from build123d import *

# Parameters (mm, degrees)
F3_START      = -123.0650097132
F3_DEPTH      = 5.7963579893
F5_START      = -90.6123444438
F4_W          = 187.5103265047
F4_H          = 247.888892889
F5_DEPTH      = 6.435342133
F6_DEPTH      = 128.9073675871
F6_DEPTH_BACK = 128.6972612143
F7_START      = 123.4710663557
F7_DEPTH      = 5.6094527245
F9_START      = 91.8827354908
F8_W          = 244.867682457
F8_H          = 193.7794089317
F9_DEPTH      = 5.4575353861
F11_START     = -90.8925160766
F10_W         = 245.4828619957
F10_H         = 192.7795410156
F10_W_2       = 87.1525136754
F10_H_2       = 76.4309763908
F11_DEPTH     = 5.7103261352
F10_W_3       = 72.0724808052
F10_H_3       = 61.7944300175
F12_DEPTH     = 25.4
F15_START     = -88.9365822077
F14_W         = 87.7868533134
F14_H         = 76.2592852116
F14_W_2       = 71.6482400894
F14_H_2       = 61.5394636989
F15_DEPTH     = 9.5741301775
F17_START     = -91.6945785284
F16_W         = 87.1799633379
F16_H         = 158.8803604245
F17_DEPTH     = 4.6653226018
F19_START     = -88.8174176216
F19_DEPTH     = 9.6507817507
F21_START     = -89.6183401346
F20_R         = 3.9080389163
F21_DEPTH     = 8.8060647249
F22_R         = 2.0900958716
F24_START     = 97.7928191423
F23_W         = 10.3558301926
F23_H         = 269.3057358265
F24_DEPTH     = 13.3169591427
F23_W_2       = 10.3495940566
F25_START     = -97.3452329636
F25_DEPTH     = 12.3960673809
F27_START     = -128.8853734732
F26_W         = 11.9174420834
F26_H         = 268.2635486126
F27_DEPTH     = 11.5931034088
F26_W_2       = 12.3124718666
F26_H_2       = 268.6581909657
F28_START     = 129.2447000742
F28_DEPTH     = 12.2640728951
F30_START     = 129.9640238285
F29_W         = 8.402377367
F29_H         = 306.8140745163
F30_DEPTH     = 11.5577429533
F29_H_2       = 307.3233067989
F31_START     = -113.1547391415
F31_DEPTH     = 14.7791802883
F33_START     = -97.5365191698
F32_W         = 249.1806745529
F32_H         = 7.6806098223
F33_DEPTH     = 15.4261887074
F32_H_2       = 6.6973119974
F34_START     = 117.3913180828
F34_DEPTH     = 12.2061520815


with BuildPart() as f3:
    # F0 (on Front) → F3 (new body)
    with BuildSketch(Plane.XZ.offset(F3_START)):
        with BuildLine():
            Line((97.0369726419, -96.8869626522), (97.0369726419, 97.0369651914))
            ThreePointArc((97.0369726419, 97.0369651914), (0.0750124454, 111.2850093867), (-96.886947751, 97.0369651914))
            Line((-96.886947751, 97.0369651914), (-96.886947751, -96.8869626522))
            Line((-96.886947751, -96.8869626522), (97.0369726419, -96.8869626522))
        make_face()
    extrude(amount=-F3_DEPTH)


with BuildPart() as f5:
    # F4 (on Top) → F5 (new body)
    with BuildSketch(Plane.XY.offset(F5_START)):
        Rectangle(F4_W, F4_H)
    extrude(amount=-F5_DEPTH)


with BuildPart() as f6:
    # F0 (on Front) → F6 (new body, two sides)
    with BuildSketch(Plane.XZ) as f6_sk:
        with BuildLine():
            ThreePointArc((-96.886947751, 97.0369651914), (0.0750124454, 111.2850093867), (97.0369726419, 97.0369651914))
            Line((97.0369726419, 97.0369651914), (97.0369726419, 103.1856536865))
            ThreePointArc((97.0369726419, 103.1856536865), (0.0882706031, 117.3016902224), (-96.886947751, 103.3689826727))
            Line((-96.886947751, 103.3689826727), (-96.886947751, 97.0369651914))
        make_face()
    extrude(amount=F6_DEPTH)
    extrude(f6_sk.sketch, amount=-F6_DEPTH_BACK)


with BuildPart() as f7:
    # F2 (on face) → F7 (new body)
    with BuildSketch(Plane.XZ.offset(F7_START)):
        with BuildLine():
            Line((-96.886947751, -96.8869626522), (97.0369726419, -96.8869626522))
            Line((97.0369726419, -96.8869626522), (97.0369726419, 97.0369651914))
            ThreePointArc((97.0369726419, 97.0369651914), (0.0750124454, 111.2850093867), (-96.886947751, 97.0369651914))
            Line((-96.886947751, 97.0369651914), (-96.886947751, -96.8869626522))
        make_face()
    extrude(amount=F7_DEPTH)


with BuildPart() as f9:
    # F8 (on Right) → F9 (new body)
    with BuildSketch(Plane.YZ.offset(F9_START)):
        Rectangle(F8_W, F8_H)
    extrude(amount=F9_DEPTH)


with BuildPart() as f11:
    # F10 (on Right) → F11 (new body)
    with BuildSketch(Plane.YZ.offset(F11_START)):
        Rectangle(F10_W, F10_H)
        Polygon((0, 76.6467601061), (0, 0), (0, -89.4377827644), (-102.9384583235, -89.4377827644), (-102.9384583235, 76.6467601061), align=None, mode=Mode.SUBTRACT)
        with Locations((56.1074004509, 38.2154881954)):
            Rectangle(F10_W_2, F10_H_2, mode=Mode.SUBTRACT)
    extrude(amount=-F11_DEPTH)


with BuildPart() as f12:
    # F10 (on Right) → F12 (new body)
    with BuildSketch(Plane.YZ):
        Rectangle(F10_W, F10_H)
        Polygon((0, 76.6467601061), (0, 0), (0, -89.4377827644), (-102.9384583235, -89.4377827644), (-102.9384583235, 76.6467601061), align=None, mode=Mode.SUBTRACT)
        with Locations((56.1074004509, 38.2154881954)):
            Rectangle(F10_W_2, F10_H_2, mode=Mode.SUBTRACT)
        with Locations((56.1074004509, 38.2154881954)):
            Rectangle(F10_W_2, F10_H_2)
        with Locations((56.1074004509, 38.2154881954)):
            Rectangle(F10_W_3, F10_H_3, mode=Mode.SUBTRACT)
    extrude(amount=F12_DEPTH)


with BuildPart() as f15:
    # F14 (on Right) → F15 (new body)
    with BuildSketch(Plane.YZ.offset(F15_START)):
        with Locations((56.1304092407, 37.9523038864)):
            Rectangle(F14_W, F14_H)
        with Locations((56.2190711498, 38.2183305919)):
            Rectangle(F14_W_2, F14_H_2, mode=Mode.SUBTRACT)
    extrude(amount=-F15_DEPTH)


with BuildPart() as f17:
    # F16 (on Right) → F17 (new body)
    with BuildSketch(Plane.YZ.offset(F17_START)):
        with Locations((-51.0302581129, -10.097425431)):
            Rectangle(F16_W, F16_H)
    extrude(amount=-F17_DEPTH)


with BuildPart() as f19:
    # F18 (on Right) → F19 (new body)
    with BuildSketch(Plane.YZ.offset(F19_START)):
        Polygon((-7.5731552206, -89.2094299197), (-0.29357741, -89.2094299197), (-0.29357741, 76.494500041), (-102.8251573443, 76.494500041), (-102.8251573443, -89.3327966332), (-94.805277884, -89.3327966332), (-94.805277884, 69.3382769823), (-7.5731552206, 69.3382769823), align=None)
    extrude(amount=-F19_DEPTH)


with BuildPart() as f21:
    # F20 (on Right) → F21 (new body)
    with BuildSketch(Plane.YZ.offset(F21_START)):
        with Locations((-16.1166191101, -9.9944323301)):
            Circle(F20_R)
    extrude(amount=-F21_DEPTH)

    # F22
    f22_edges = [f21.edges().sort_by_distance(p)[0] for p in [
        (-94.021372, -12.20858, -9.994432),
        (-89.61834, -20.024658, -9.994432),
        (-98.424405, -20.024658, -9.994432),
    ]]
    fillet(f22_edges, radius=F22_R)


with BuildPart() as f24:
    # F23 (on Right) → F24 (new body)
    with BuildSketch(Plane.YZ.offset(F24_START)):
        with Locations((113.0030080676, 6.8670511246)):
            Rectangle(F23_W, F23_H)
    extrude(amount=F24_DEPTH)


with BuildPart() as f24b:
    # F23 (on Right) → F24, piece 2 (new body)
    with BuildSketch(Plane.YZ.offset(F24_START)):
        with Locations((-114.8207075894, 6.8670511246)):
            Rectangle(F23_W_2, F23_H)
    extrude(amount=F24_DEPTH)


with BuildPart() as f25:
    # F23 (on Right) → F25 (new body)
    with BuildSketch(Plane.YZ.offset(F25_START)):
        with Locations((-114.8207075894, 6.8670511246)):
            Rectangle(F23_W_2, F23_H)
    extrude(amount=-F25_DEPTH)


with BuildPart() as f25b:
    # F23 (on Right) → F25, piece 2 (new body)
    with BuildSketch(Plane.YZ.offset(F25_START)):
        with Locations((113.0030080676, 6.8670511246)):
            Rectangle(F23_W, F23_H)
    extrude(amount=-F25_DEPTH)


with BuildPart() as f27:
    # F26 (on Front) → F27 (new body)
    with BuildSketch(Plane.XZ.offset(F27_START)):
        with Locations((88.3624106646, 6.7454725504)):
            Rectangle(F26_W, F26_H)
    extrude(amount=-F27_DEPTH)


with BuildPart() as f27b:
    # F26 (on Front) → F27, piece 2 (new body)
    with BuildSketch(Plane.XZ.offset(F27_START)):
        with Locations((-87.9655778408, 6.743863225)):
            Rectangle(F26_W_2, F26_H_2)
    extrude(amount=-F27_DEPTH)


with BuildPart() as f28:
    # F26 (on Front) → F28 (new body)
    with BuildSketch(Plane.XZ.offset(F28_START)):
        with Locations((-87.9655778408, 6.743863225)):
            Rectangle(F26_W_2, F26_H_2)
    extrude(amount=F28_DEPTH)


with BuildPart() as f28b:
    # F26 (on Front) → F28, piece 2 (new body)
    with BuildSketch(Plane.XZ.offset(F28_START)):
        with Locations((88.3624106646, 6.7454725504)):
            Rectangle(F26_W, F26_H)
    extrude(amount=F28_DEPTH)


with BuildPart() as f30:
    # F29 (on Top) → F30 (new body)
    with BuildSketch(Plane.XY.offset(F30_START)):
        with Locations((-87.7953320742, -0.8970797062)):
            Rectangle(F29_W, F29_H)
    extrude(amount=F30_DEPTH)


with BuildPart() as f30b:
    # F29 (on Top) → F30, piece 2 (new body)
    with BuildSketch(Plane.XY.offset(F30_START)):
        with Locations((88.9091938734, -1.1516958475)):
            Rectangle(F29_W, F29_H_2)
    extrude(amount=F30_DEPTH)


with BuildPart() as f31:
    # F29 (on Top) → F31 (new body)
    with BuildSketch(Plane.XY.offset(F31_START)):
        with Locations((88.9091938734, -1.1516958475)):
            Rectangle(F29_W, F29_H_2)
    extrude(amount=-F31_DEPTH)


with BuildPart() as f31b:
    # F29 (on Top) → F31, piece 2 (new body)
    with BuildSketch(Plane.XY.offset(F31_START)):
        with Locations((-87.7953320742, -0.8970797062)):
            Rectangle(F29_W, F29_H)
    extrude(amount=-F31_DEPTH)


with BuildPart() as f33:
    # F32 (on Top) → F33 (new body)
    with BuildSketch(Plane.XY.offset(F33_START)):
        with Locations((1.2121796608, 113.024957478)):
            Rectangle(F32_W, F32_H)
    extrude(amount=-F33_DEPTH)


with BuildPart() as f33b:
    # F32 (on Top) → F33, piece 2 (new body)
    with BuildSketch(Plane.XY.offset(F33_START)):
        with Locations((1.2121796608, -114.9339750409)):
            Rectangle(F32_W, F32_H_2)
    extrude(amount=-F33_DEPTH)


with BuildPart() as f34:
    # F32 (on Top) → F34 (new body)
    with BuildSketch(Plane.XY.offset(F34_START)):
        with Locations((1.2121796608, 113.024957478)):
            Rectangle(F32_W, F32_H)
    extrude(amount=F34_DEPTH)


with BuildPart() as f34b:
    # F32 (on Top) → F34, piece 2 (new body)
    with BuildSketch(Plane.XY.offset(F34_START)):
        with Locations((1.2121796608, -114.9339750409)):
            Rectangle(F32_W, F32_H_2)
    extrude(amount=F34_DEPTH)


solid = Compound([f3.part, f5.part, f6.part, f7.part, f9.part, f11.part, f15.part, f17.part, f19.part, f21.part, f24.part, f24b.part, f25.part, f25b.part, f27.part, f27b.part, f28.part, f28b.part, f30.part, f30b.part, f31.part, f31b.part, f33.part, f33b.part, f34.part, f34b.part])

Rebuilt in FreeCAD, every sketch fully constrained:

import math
import FreeCAD as App
import Part
import Sketcher

V = App.Vector
Q = App.Units.Quantity

doc = App.newDocument("Part")
body = doc.addObject("PartDesign::Body", "Body")

sketch1 = body.newObject("Sketcher::SketchObject", "Sketch")
sketch1.AttachmentSupport = (doc.getObject("XZ_Plane"), [""])
sketch1.MapMode = "FlatFace"
sketch1.AttachmentOffset = App.Placement(V(0, 0, -123.06501), App.Rotation())
sketch1.addGeometry([
    Part.LineSegment(V(97, -97, 0), V(97, 97, 0)),
    Part.ArcOfCircle(Part.Circle(V(0, -226, 0), V(0, 0, 1), 337), math.radians(73), math.radians(107)),
    Part.LineSegment(V(-97, 97, 0), V(-97, -97, 0)),
    Part.LineSegment(V(-97, -97, 0), V(97, -97, 0)),
], False)
sketch1.addConstraint([
    Sketcher.Constraint("Coincident", 0, 2, 1, 1),
    Sketcher.Constraint("Coincident", 1, 2, 2, 1),
    Sketcher.Constraint("Coincident", 2, 2, 3, 1),
    Sketcher.Constraint("Coincident", 3, 2, 0, 1),
    Sketcher.Constraint("Vertical", 0),
    Sketcher.Constraint("Vertical", 2),
    Sketcher.Constraint("Horizontal", 3),
    Sketcher.Constraint("Horizontal", 0, 2, 1, 2),
    Sketcher.Constraint("DistanceX", 3, 1, 3, 2, Q("7.6348 in")),
    Sketcher.Constraint("Radius", 1, Q("337.050768 mm")),
    Sketcher.Constraint("DistanceY", 0, 1, 0, 2, Q("193.923928 mm")),
    Sketcher.Constraint("DistanceY", 1, 3, -1, 1, Q("225.765759 mm")),
    Sketcher.Constraint("DistanceX", -1, 1, 1, 3, Q("0.075012 mm")),
])
pad1 = body.newObject("PartDesign::Pad", "Pad")
pad1.Profile = sketch1
pad1.Length = 5.796358
pad1.Reversed = True
body2 = doc.addObject("PartDesign::Body", "Body001")

sketch2 = body2.newObject("Sketcher::SketchObject", "Sketch001")
sketch2.AttachmentSupport = (doc.getObject("XY_Plane001"), [""])
sketch2.MapMode = "FlatFace"
sketch2.AttachmentOffset = App.Placement(V(0, 0, -90.612344), App.Rotation())
sketch2.addGeometry([
    Part.LineSegment(V(-94, 124, 0), V(-94, -124, 0)),
    Part.LineSegment(V(-94, -124, 0), V(94, -124, 0)),
    Part.LineSegment(V(94, -124, 0), V(94, 124, 0)),
    Part.LineSegment(V(94, 124, 0), V(-94, 124, 0)),
], False)
sketch2.addConstraint([
    Sketcher.Constraint("Coincident", 0, 2, 1, 1),
    Sketcher.Constraint("Coincident", 1, 2, 2, 1),
    Sketcher.Constraint("Coincident", 2, 2, 3, 1),
    Sketcher.Constraint("Coincident", 3, 2, 0, 1),
    Sketcher.Constraint("Vertical", 0),
    Sketcher.Constraint("Horizontal", 1),
    Sketcher.Constraint("Vertical", 2),
    Sketcher.Constraint("Horizontal", 3),
    Sketcher.Constraint("Symmetric", 0, 2, 2, 2, -1, 1),
    Sketcher.Constraint("DistanceX", 1, 1, 1, 2, Q("187.510327 mm")),
    Sketcher.Constraint("DistanceY", 0, 2, 0, 1, Q("247.888893 mm")),
])
pad2 = body2.newObject("PartDesign::Pad", "Pad001")
pad2.Profile = sketch2
pad2.Length = 6.435342
pad2.Reversed = True
body3 = doc.addObject("PartDesign::Body", "Body002")

sketch3 = body3.newObject("Sketcher::SketchObject", "Sketch002")
sketch3.AttachmentSupport = (doc.getObject("XZ_Plane002"), [""])
sketch3.MapMode = "FlatFace"
sketch3.addGeometry([
    Part.ArcOfCircle(Part.Circle(V(0, -226, 0), V(0, 0, 1), 337), math.radians(73), math.radians(107)),
    Part.LineSegment(V(97, 97, 0), V(97, 103, 0)),
    Part.ArcOfCircle(Part.Circle(V(0, -225, 0), V(0, 0, 1), 342), math.radians(73), math.radians(106)),
    Part.LineSegment(V(-97, 103, 0), V(-97, 97, 0)),
], False)
sketch3.addConstraint([
    Sketcher.Constraint("Coincident", 0, 1, 1, 1),
    Sketcher.Constraint("Coincident", 1, 2, 2, 1),
    Sketcher.Constraint("Coincident", 2, 2, 3, 1),
    Sketcher.Constraint("Coincident", 3, 2, 0, 2),
    Sketcher.Constraint("Vertical", 1),
    Sketcher.Constraint("Vertical", 3),
    Sketcher.Constraint("Horizontal", 0, 1, 3, 2),
    Sketcher.Constraint("Radius", 0, Q("337.050768 mm")),
    Sketcher.Constraint("Radius", 2, Q("342.201027 mm")),
    Sketcher.Constraint("DistanceX", 0, 3, 1, 2, Q("3.8174 in")),
    Sketcher.Constraint("DistanceY", 1, 1, 1, 2, Q("6.148688 mm")),
    Sketcher.Constraint("DistanceY", 3, 2, 3, 1, Q("6.332017 mm")),
    Sketcher.Constraint("DistanceY", 0, 3, -1, 1, Q("225.765759 mm")),
    Sketcher.Constraint("DistanceX", -1, 1, 0, 3, Q("0.075012 mm")),
])
pad3 = body3.newObject("PartDesign::Pad", "Pad002")
pad3.Profile = sketch3
pad3.Type = "TwoLengths"
pad3.Length = 128.907368
pad3.Length2 = 128.697261
body4 = doc.addObject("PartDesign::Body", "Body003")

sketch4 = body4.newObject("Sketcher::SketchObject", "Sketch003")
sketch4.AttachmentSupport = (doc.getObject("XZ_Plane003"), [""])
sketch4.MapMode = "FlatFace"
sketch4.AttachmentOffset = App.Placement(V(0, 0, 123.471066), App.Rotation())
sketch4.addGeometry([
    Part.LineSegment(V(-97, -97, 0), V(97, -97, 0)),
    Part.LineSegment(V(97, -97, 0), V(97, 97, 0)),
    Part.ArcOfCircle(Part.Circle(V(0, -226, 0), V(0, 0, 1), 337), math.radians(73), math.radians(107)),
    Part.LineSegment(V(-97, 97, 0), V(-97, -97, 0)),
], False)
sketch4.addConstraint([
    Sketcher.Constraint("Coincident", 0, 2, 1, 1),
    Sketcher.Constraint("Coincident", 1, 2, 2, 1),
    Sketcher.Constraint("Coincident", 2, 2, 3, 1),
    Sketcher.Constraint("Coincident", 3, 2, 0, 1),
    Sketcher.Constraint("Horizontal", 0),
    Sketcher.Constraint("Vertical", 1),
    Sketcher.Constraint("Vertical", 3),
    Sketcher.Constraint("Horizontal", 1, 2, 2, 2),
    Sketcher.Constraint("DistanceX", 0, 1, 0, 2, Q("7.6348 in")),
    Sketcher.Constraint("Radius", 2, Q("337.050768 mm")),
    Sketcher.Constraint("DistanceY", 1, 1, 1, 2, Q("193.923928 mm")),
    Sketcher.Constraint("DistanceY", 2, 3, -1, 1, Q("225.765759 mm")),
    Sketcher.Constraint("DistanceX", -1, 1, 2, 3, Q("0.075012 mm")),
])
pad4 = body4.newObject("PartDesign::Pad", "Pad003")
pad4.Profile = sketch4
pad4.Length = 5.609453
body5 = doc.addObject("PartDesign::Body", "Body004")

sketch5 = body5.newObject("Sketcher::SketchObject", "Sketch004")
sketch5.AttachmentSupport = (doc.getObject("YZ_Plane004"), [""])
sketch5.MapMode = "FlatFace"
sketch5.AttachmentOffset = App.Placement(V(0, 0, 91.882735), App.Rotation())
sketch5.addGeometry([
    Part.LineSegment(V(-122, 97, 0), V(-122, -97, 0)),
    Part.LineSegment(V(-122, -97, 0), V(122, -97, 0)),
    Part.LineSegment(V(122, -97, 0), V(122, 97, 0)),
    Part.LineSegment(V(122, 97, 0), V(-122, 97, 0)),
], False)
sketch5.addConstraint([
    Sketcher.Constraint("Coincident", 0, 2, 1, 1),
    Sketcher.Constraint("Coincident", 1, 2, 2, 1),
    Sketcher.Constraint("Coincident", 2, 2, 3, 1),
    Sketcher.Constraint("Coincident", 3, 2, 0, 1),
    Sketcher.Constraint("Vertical", 0),
    Sketcher.Constraint("Horizontal", 1),
    Sketcher.Constraint("Vertical", 2),
    Sketcher.Constraint("Horizontal", 3),
    Sketcher.Constraint("Symmetric", 0, 2, 2, 2, -1, 1),
    Sketcher.Constraint("DistanceY", 0, 2, 0, 1, Q("193.779409 mm")),
    Sketcher.Constraint("DistanceX", 1, 1, 1, 2, Q("244.867682 mm")),
])
pad5 = body5.newObject("PartDesign::Pad", "Pad004")
pad5.Profile = sketch5
pad5.Length = 5.457535
body6 = doc.addObject("PartDesign::Body", "Body005")

sketch6 = body6.newObject("Sketcher::SketchObject", "Sketch005")
sketch6.AttachmentSupport = (doc.getObject("YZ_Plane005"), [""])
sketch6.MapMode = "FlatFace"
sketch6.AttachmentOffset = App.Placement(V(0, 0, -90.892516), App.Rotation())
sketch6.addGeometry([
    Part.LineSegment(V(-123, 96, 0), V(-123, -96, 0)),
    Part.LineSegment(V(-123, -96, 0), V(123, -96, 0)),
    Part.LineSegment(V(123, -96, 0), V(123, 96, 0)),
    Part.LineSegment(V(123, 96, 0), V(-123, 96, 0)),
    Part.LineSegment(V(-103, 77, 0), V(0, 77, 0)),
    Part.LineSegment(V(0, 77, 0), V(0, -89, 0)),
    Part.LineSegment(V(0, -89, 0), V(-103, -89, 0)),
    Part.LineSegment(V(-103, -89, 0), V(-103, 77, 0)),
    Part.LineSegment(V(100, 0, 0), V(13, 0, 0)),
    Part.LineSegment(V(13, 0, 0), V(13, 76, 0)),
    Part.LineSegment(V(13, 76, 0), V(100, 76, 0)),
    Part.LineSegment(V(100, 76, 0), V(100, 0, 0)),
], False)
sketch6.addConstraint([
    Sketcher.Constraint("Coincident", 0, 2, 1, 1),
    Sketcher.Constraint("Coincident", 1, 2, 2, 1),
    Sketcher.Constraint("Coincident", 2, 2, 3, 1),
    Sketcher.Constraint("Coincident", 3, 2, 0, 1),
    Sketcher.Constraint("Coincident", 4, 2, 5, 1),
    Sketcher.Constraint("Coincident", 5, 2, 6, 1),
    Sketcher.Constraint("Coincident", 6, 2, 7, 1),
    Sketcher.Constraint("Coincident", 7, 2, 4, 1),
    Sketcher.Constraint("Coincident", 8, 2, 9, 1),
    Sketcher.Constraint("Coincident", 9, 2, 10, 1),
    Sketcher.Constraint("Coincident", 10, 2, 11, 1),
    Sketcher.Constraint("Coincident", 11, 2, 8, 1),
    Sketcher.Constraint("Vertical", 0),
    Sketcher.Constraint("Horizontal", 1),
    Sketcher.Constraint("Vertical", 2),
    Sketcher.Constraint("Horizontal", 3),
    Sketcher.Constraint("Horizontal", 4),
    Sketcher.Constraint("Vertical", 5),
    Sketcher.Constraint("Horizontal", 6),
    Sketcher.Constraint("Vertical", 7),
    Sketcher.Constraint("Horizontal", 8),
    Sketcher.Constraint("Vertical", 9),
    Sketcher.Constraint("Horizontal", 10),
    Sketcher.Constraint("Vertical", 11),
    Sketcher.Constraint("Symmetric", 0, 2, 2, 2, -1, 1),
    Sketcher.Constraint("PointOnObject", 4, 2, -2),
    Sketcher.Constraint("PointOnObject", 8, 2, -1),
    Sketcher.Constraint("DistanceX", 1, 1, 1, 2, Q("245.482862 mm")),
    Sketcher.Constraint("DistanceX", 4, 1, 4, 2, Q("102.938458 mm")),
    Sketcher.Constraint("DistanceY", 0, 2, 0, 1, Q("192.779541 mm")),
    Sketcher.Constraint("DistanceX", 7, 2, 8, 2, Q("115.469602 mm")),
    Sketcher.Constraint("DistanceX", 8, 2, 8, 1, Q("87.152514 mm")),
    Sketcher.Constraint("DistanceY", 5, 2, 5, 1, Q("166.084543 mm")),
    Sketcher.Constraint("DistanceY", 9, 1, 9, 2, Q("76.430976 mm")),
    Sketcher.Constraint("DistanceY", -1, 1, 4, 2, Q("76.64676 mm")),
])
pad6 = body6.newObject("PartDesign::Pad", "Pad005")
pad6.Profile = sketch6
pad6.Length = 5.710326
pad6.Reversed = True
body7 = doc.addObject("PartDesign::Body", "Body006")

sketch7 = body7.newObject("Sketcher::SketchObject", "Sketch006")
sketch7.AttachmentSupport = (doc.getObject("YZ_Plane006"), [""])
sketch7.MapMode = "FlatFace"
sketch7.addGeometry([
    Part.LineSegment(V(-123, 96, 0), V(-123, -96, 0)),
    Part.LineSegment(V(-123, -96, 0), V(123, -96, 0)),
    Part.LineSegment(V(123, -96, 0), V(123, 96, 0)),
    Part.LineSegment(V(123, 96, 0), V(-123, 96, 0)),
    Part.LineSegment(V(-103, 77, 0), V(0, 77, 0)),
    Part.LineSegment(V(0, 77, 0), V(0, -89, 0)),
    Part.LineSegment(V(0, -89, 0), V(-103, -89, 0)),
    Part.LineSegment(V(-103, -89, 0), V(-103, 77, 0)),
    Part.LineSegment(V(92, 7, 0), V(20, 7, 0)),
    Part.LineSegment(V(20, 7, 0), V(20, 69, 0)),
    Part.LineSegment(V(20, 69, 0), V(92, 69, 0)),
    Part.LineSegment(V(92, 69, 0), V(92, 7, 0)),
], False)
sketch7.addConstraint([
    Sketcher.Constraint("Coincident", 0, 2, 1, 1),
    Sketcher.Constraint("Coincident", 1, 2, 2, 1),
    Sketcher.Constraint("Coincident", 2, 2, 3, 1),
    Sketcher.Constraint("Coincident", 3, 2, 0, 1),
    Sketcher.Constraint("Coincident", 4, 2, 5, 1),
    Sketcher.Constraint("Coincident", 5, 2, 6, 1),
    Sketcher.Constraint("Coincident", 6, 2, 7, 1),
    Sketcher.Constraint("Coincident", 7, 2, 4, 1),
    Sketcher.Constraint("Coincident", 8, 2, 9, 1),
    Sketcher.Constraint("Coincident", 9, 2, 10, 1),
    Sketcher.Constraint("Coincident", 10, 2, 11, 1),
    Sketcher.Constraint("Coincident", 11, 2, 8, 1),
    Sketcher.Constraint("Vertical", 0),
    Sketcher.Constraint("Horizontal", 1),
    Sketcher.Constraint("Vertical", 2),
    Sketcher.Constraint("Horizontal", 3),
    Sketcher.Constraint("Horizontal", 4),
    Sketcher.Constraint("Vertical", 5),
    Sketcher.Constraint("Horizontal", 6),
    Sketcher.Constraint("Vertical", 7),
    Sketcher.Constraint("Horizontal", 8),
    Sketcher.Constraint("Vertical", 9),
    Sketcher.Constraint("Horizontal", 10),
    Sketcher.Constraint("Vertical", 11),
    Sketcher.Constraint("Symmetric", 0, 2, 2, 2, -1, 1),
    Sketcher.Constraint("PointOnObject", 4, 2, -2),
    Sketcher.Constraint("DistanceX", 1, 1, 1, 2, Q("245.482862 mm")),
    Sketcher.Constraint("DistanceX", 4, 1, 4, 2, Q("102.938458 mm")),
    Sketcher.Constraint("DistanceX", 8, 2, 8, 1, Q("72.072481 mm")),
    Sketcher.Constraint("DistanceY", 0, 2, 0, 1, Q("192.779541 mm")),
    Sketcher.Constraint("DistanceY", 9, 1, 9, 2, Q("61.79443 mm")),
    Sketcher.Constraint("DistanceY", 5, 2, 5, 1, Q("166.084543 mm")),
    Sketcher.Constraint("DistanceY", -1, 1, 4, 2, Q("76.64676 mm")),
    Sketcher.Constraint("DistanceX", -1, 1, 8, 2, Q("20.07116 mm")),
    Sketcher.Constraint("DistanceY", -1, 1, 8, 2, Q("7.318273 mm")),
])
pad7 = body7.newObject("PartDesign::Pad", "Pad006")
pad7.Profile = sketch7
pad7.Length = Q("1 in")
body8 = doc.addObject("PartDesign::Body", "Body007")

sketch8 = body8.newObject("Sketcher::SketchObject", "Sketch007")
sketch8.AttachmentSupport = (doc.getObject("YZ_Plane007"), [""])
sketch8.MapMode = "FlatFace"
sketch8.AttachmentOffset = App.Placement(V(0, 0, -88.936582), App.Rotation())
sketch8.addGeometry([
    Part.LineSegment(V(12, 76, 0), V(12, 0, 0)),
    Part.LineSegment(V(12, 0, 0), V(100, 0, 0)),
    Part.LineSegment(V(100, 0, 0), V(100, 76, 0)),
    Part.LineSegment(V(100, 76, 0), V(12, 76, 0)),
    Part.LineSegment(V(92, 7, 0), V(20, 7, 0)),
    Part.LineSegment(V(20, 7, 0), V(20, 69, 0)),
    Part.LineSegment(V(20, 69, 0), V(92, 69, 0)),
    Part.LineSegment(V(92, 69, 0), V(92, 7, 0)),
], False)
sketch8.addConstraint([
    Sketcher.Constraint("Coincident", 0, 2, 1, 1),
    Sketcher.Constraint("Coincident", 1, 2, 2, 1),
    Sketcher.Constraint("Coincident", 2, 2, 3, 1),
    Sketcher.Constraint("Coincident", 3, 2, 0, 1),
    Sketcher.Constraint("Coincident", 4, 2, 5, 1),
    Sketcher.Constraint("Coincident", 5, 2, 6, 1),
    Sketcher.Constraint("Coincident", 6, 2, 7, 1),
    Sketcher.Constraint("Coincident", 7, 2, 4, 1),
    Sketcher.Constraint("Vertical", 0),
    Sketcher.Constraint("Horizontal", 1),
    Sketcher.Constraint("Vertical", 2),
    Sketcher.Constraint("Horizontal", 3),
    Sketcher.Constraint("Horizontal", 4),
    Sketcher.Constraint("Vertical", 5),
    Sketcher.Constraint("Horizontal", 6),
    Sketcher.Constraint("Vertical", 7),
    Sketcher.Constraint("DistanceX", 4, 2, 4, 1, Q("71.64824 mm")),
    Sketcher.Constraint("DistanceY", -1, 1, 4, 2, Q("7.448599 mm")),
    Sketcher.Constraint("DistanceY", 0, 2, 5, 2, Q("69.165401 mm")),
    Sketcher.Constraint("DistanceX", 1, 1, 1, 2, Q("87.786853 mm")),
    Sketcher.Constraint("DistanceY", 0, 2, 0, 1, Q("76.259285 mm")),
    Sketcher.Constraint("DistanceY", 5, 1, 5, 2, Q("61.539464 mm")),
    Sketcher.Constraint("DistanceX", -1, 1, 4, 2, Q("20.394951 mm")),
    Sketcher.Constraint("DistanceX", 0, 2, 4, 2, Q("8.157969 mm")),
])
pad8 = body8.newObject("PartDesign::Pad", "Pad007")
pad8.Profile = sketch8
pad8.Length = 9.57413
pad8.Reversed = True
body9 = doc.addObject("PartDesign::Body", "Body008")

sketch9 = body9.newObject("Sketcher::SketchObject", "Sketch008")
sketch9.AttachmentSupport = (doc.getObject("YZ_Plane008"), [""])
sketch9.MapMode = "FlatFace"
sketch9.AttachmentOffset = App.Placement(V(0, 0, -91.694579), App.Rotation())
sketch9.addGeometry([
    Part.LineSegment(V(-95, 69, 0), V(-95, -90, 0)),
    Part.LineSegment(V(-95, -90, 0), V(-7, -90, 0)),
    Part.LineSegment(V(-7, -90, 0), V(-7, 69, 0)),
    Part.LineSegment(V(-7, 69, 0), V(-95, 69, 0)),
], False)
sketch9.addConstraint([
    Sketcher.Constraint("Coincident", 0, 2, 1, 1),
    Sketcher.Constraint("Coincident", 1, 2, 2, 1),
    Sketcher.Constraint("Coincident", 2, 2, 3, 1),
    Sketcher.Constraint("Coincident", 3, 2, 0, 1),
    Sketcher.Constraint("Vertical", 0),
    Sketcher.Constraint("Horizontal", 1),
    Sketcher.Constraint("Vertical", 2),
    Sketcher.Constraint("Horizontal", 3),
    Sketcher.Constraint("DistanceY", 0, 2, 0, 1, Q("158.88036 mm")),
    Sketcher.Constraint("DistanceX", 1, 1, 1, 2, Q("87.179963 mm")),
    Sketcher.Constraint("DistanceX", 0, 2, -1, 1, Q("94.62024 mm")),
    Sketcher.Constraint("DistanceY", 0, 2, -1, 1, Q("89.537606 mm")),
])
pad9 = body9.newObject("PartDesign::Pad", "Pad008")
pad9.Profile = sketch9
pad9.Length = 4.665323
pad9.Reversed = True
body10 = doc.addObject("PartDesign::Body", "Body009")

sketch10 = body10.newObject("Sketcher::SketchObject", "Sketch009")
sketch10.AttachmentSupport = (doc.getObject("YZ_Plane009"), [""])
sketch10.MapMode = "FlatFace"
sketch10.AttachmentOffset = App.Placement(V(0, 0, -88.817418), App.Rotation())
sketch10.addGeometry([
    Part.LineSegment(V(-8, -89, 0), V(0, -89, 0)),
    Part.LineSegment(V(0, -89, 0), V(0, 76, 0)),
    Part.LineSegment(V(0, 76, 0), V(-103, 76, 0)),
    Part.LineSegment(V(-103, 76, 0), V(-103, -89, 0)),
    Part.LineSegment(V(-103, -89, 0), V(-95, -89, 0)),
    Part.LineSegment(V(-95, -89, 0), V(-95, 69, 0)),
    Part.LineSegment(V(-95, 69, 0), V(-8, 69, 0)),
    Part.LineSegment(V(-8, 69, 0), V(-8, -89, 0)),
], False)
sketch10.addConstraint([
    Sketcher.Constraint("Coincident", 0, 2, 1, 1),
    Sketcher.Constraint("Coincident", 1, 2, 2, 1),
    Sketcher.Constraint("Coincident", 2, 2, 3, 1),
    Sketcher.Constraint("Coincident", 3, 2, 4, 1),
    Sketcher.Constraint("Coincident", 4, 2, 5, 1),
    Sketcher.Constraint("Coincident", 5, 2, 6, 1),
    Sketcher.Constraint("Coincident", 6, 2, 7, 1),
    Sketcher.Constraint("Coincident", 7, 2, 0, 1),
    Sketcher.Constraint("Horizontal", 0),
    Sketcher.Constraint("Vertical", 1),
    Sketcher.Constraint("Horizontal", 2),
    Sketcher.Constraint("Vertical", 3),
    Sketcher.Constraint("Horizontal", 4),
    Sketcher.Constraint("Vertical", 5),
    Sketcher.Constraint("Horizontal", 6),
    Sketcher.Constraint("Vertical", 7),
    Sketcher.Constraint("DistanceX", 2, 2, 2, 1, Q("102.53158 mm")),
    Sketcher.Constraint("DistanceX", 4, 1, 4, 2, Q("8.019879 mm")),
    Sketcher.Constraint("DistanceY", 1, 1, 1, 2, Q("165.70393 mm")),
    Sketcher.Constraint("DistanceY", -1, 1, 1, 2, Q("76.4945 mm")),
    Sketcher.Constraint("DistanceX", 0, 1, 0, 2, Q("7.279578 mm")),
    Sketcher.Constraint("DistanceY", 3, 2, 3, 1, Q("165.827297 mm")),
    Sketcher.Constraint("DistanceY", 5, 1, 5, 2, Q("158.671074 mm")),
    Sketcher.Constraint("DistanceX", 0, 2, -1, 1, Q("0.293577 mm")),
])
pad10 = body10.newObject("PartDesign::Pad", "Pad009")
pad10.Profile = sketch10
pad10.Length = 9.650782
pad10.Reversed = True
body11 = doc.addObject("PartDesign::Body", "Body010")

sketch11 = body11.newObject("Sketcher::SketchObject", "Sketch010")
sketch11.AttachmentSupport = (doc.getObject("YZ_Plane010"), [""])
sketch11.MapMode = "FlatFace"
sketch11.AttachmentOffset = App.Placement(V(0, 0, -89.61834), App.Rotation())
sketch11.addGeometry(Part.Circle(V(-16.1, -10, 0), V(0, 0, 1), 3.9), False)
sketch11.addConstraint([
    Sketcher.Constraint("Diameter", 0, Q("7.816078 mm")),
    Sketcher.Constraint("DistanceX", 0, 3, -1, 1, Q("16.116619 mm")),
    Sketcher.Constraint("DistanceY", 0, 3, -1, 1, Q("9.994432 mm")),
])
pad11 = body11.newObject("PartDesign::Pad", "Pad010")
pad11.Profile = sketch11
pad11.Length = 8.806065
pad11.Reversed = True
doc.recompute()

fillet = body11.newObject("PartDesign::Fillet", "Fillet")
fillet.Base = (pad11, ["Edge1"])
fillet.UseAllEdges = True
fillet.Radius = 2.090096
body12 = doc.addObject("PartDesign::Body", "Body011")

sketch12 = body12.newObject("Sketcher::SketchObject", "Sketch011")
sketch12.AttachmentSupport = (doc.getObject("YZ_Plane011"), [""])
sketch12.MapMode = "FlatFace"
sketch12.AttachmentOffset = App.Placement(V(0, 0, 97.792819), App.Rotation())
sketch12.addGeometry([
    Part.LineSegment(V(108, 142, 0), V(108, -128, 0)),
    Part.LineSegment(V(108, -128, 0), V(118, -128, 0)),
    Part.LineSegment(V(118, -128, 0), V(118, 142, 0)),
    Part.LineSegment(V(118, 142, 0), V(108, 142, 0)),
], False)
sketch12.addConstraint([
    Sketcher.Constraint("Coincident", 0, 2, 1, 1),
    Sketcher.Constraint("Coincident", 1, 2, 2, 1),
    Sketcher.Constraint("Coincident", 2, 2, 3, 1),
    Sketcher.Constraint("Coincident", 3, 2, 0, 1),
    Sketcher.Constraint("Vertical", 0),
    Sketcher.Constraint("Horizontal", 1),
    Sketcher.Constraint("Vertical", 2),
    Sketcher.Constraint("Horizontal", 3),
    Sketcher.Constraint("DistanceX", 1, 1, 1, 2, Q("10.35583 mm")),
    Sketcher.Constraint("DistanceY", 0, 2, 0, 1, Q("269.305736 mm")),
    Sketcher.Constraint("DistanceY", -1, 1, 2, 2, Q("141.519919 mm")),
    Sketcher.Constraint("DistanceX", -1, 1, 0, 2, Q("107.825093 mm")),
])
pad12 = body12.newObject("PartDesign::Pad", "Pad011")
pad12.Profile = sketch12
pad12.Length = 13.316959
body13 = doc.addObject("PartDesign::Body", "Body012")

sketch13 = body13.newObject("Sketcher::SketchObject", "Sketch012")
sketch13.AttachmentSupport = (doc.getObject("YZ_Plane012"), [""])
sketch13.MapMode = "FlatFace"
sketch13.AttachmentOffset = App.Placement(V(0, 0, 97.792819), App.Rotation())
sketch13.addGeometry([
    Part.LineSegment(V(-120, 142, 0), V(-120, -128, 0)),
    Part.LineSegment(V(-120, -128, 0), V(-110, -128, 0)),
    Part.LineSegment(V(-110, -128, 0), V(-110, 142, 0)),
    Part.LineSegment(V(-110, 142, 0), V(-120, 142, 0)),
], False)
sketch13.addConstraint([
    Sketcher.Constraint("Coincident", 0, 2, 1, 1),
    Sketcher.Constraint("Coincident", 1, 2, 2, 1),
    Sketcher.Constraint("Coincident", 2, 2, 3, 1),
    Sketcher.Constraint("Coincident", 3, 2, 0, 1),
    Sketcher.Constraint("Vertical", 0),
    Sketcher.Constraint("Horizontal", 1),
    Sketcher.Constraint("Vertical", 2),
    Sketcher.Constraint("Horizontal", 3),
    Sketcher.Constraint("DistanceX", 1, 1, 1, 2, Q("10.349594 mm")),
    Sketcher.Constraint("DistanceY", 0, 2, 0, 1, Q("269.305736 mm")),
    Sketcher.Constraint("DistanceX", 1, 2, -1, 1, Q("109.645911 mm")),
    Sketcher.Constraint("DistanceY", -1, 1, 2, 2, Q("141.519919 mm")),
])
pad13 = body13.newObject("PartDesign::Pad", "Pad012")
pad13.Profile = sketch13
pad13.Length = 13.316959
body14 = doc.addObject("PartDesign::Body", "Body013")

sketch14 = body14.newObject("Sketcher::SketchObject", "Sketch013")
sketch14.AttachmentSupport = (doc.getObject("YZ_Plane013"), [""])
sketch14.MapMode = "FlatFace"
sketch14.AttachmentOffset = App.Placement(V(0, 0, -97.345233), App.Rotation())
sketch14.addGeometry([
    Part.LineSegment(V(-120, 142, 0), V(-120, -128, 0)),
    Part.LineSegment(V(-120, -128, 0), V(-110, -128, 0)),
    Part.LineSegment(V(-110, -128, 0), V(-110, 142, 0)),
    Part.LineSegment(V(-110, 142, 0), V(-120, 142, 0)),
], False)
sketch14.addConstraint([
    Sketcher.Constraint("Coincident", 0, 2, 1, 1),
    Sketcher.Constraint("Coincident", 1, 2, 2, 1),
    Sketcher.Constraint("Coincident", 2, 2, 3, 1),
    Sketcher.Constraint("Coincident", 3, 2, 0, 1),
    Sketcher.Constraint("Vertical", 0),
    Sketcher.Constraint("Horizontal", 1),
    Sketcher.Constraint("Vertical", 2),
    Sketcher.Constraint("Horizontal", 3),
    Sketcher.Constraint("DistanceX", 1, 1, 1, 2, Q("10.349594 mm")),
    Sketcher.Constraint("DistanceY", 0, 2, 0, 1, Q("269.305736 mm")),
    Sketcher.Constraint("DistanceX", 1, 2, -1, 1, Q("109.645911 mm")),
    Sketcher.Constraint("DistanceY", -1, 1, 2, 2, Q("141.519919 mm")),
])
pad14 = body14.newObject("PartDesign::Pad", "Pad013")
pad14.Profile = sketch14
pad14.Length = 12.396067
pad14.Reversed = True
body15 = doc.addObject("PartDesign::Body", "Body014")

sketch15 = body15.newObject("Sketcher::SketchObject", "Sketch014")
sketch15.AttachmentSupport = (doc.getObject("YZ_Plane014"), [""])
sketch15.MapMode = "FlatFace"
sketch15.AttachmentOffset = App.Placement(V(0, 0, -97.345233), App.Rotation())
sketch15.addGeometry([
    Part.LineSegment(V(108, 142, 0), V(108, -128, 0)),
    Part.LineSegment(V(108, -128, 0), V(118, -128, 0)),
    Part.LineSegment(V(118, -128, 0), V(118, 142, 0)),
    Part.LineSegment(V(118, 142, 0), V(108, 142, 0)),
], False)
sketch15.addConstraint([
    Sketcher.Constraint("Coincident", 0, 2, 1, 1),
    Sketcher.Constraint("Coincident", 1, 2, 2, 1),
    Sketcher.Constraint("Coincident", 2, 2, 3, 1),
    Sketcher.Constraint("Coincident", 3, 2, 0, 1),
    Sketcher.Constraint("Vertical", 0),
    Sketcher.Constraint("Horizontal", 1),
    Sketcher.Constraint("Vertical", 2),
    Sketcher.Constraint("Horizontal", 3),
    Sketcher.Constraint("DistanceX", 1, 1, 1, 2, Q("10.35583 mm")),
    Sketcher.Constraint("DistanceY", 0, 2, 0, 1, Q("269.305736 mm")),
    Sketcher.Constraint("DistanceY", -1, 1, 2, 2, Q("141.519919 mm")),
    Sketcher.Constraint("DistanceX", -1, 1, 0, 2, Q("107.825093 mm")),
])
pad15 = body15.newObject("PartDesign::Pad", "Pad014")
pad15.Profile = sketch15
pad15.Length = 12.396067
pad15.Reversed = True
body16 = doc.addObject("PartDesign::Body", "Body015")

sketch16 = body16.newObject("Sketcher::SketchObject", "Sketch015")
sketch16.AttachmentSupport = (doc.getObject("XZ_Plane015"), [""])
sketch16.MapMode = "FlatFace"
sketch16.AttachmentOffset = App.Placement(V(0, 0, -128.885373), App.Rotation())
sketch16.addGeometry([
    Part.LineSegment(V(82, 141, 0), V(82, -127, 0)),
    Part.LineSegment(V(82, -127, 0), V(94, -127, 0)),
    Part.LineSegment(V(94, -127, 0), V(94, 141, 0)),
    Part.LineSegment(V(94, 141, 0), V(82, 141, 0)),
], False)
sketch16.addConstraint([
    Sketcher.Constraint("Coincident", 0, 2, 1, 1),
    Sketcher.Constraint("Coincident", 1, 2, 2, 1),
    Sketcher.Constraint("Coincident", 2, 2, 3, 1),
    Sketcher.Constraint("Coincident", 3, 2, 0, 1),
    Sketcher.Constraint("Vertical", 0),
    Sketcher.Constraint("Horizontal", 1),
    Sketcher.Constraint("Vertical", 2),
    Sketcher.Constraint("Horizontal", 3),
    Sketcher.Constraint("DistanceY", 0, 2, 0, 1, Q("268.263549 mm")),
    Sketcher.Constraint("DistanceY", 0, 2, -1, 1, Q("127.386302 mm")),
    Sketcher.Constraint("DistanceX", 1, 1, 1, 2, Q("11.917442 mm")),
    Sketcher.Constraint("DistanceX", -1, 1, 0, 2, Q("82.40369 mm")),
])
pad16 = body16.newObject("PartDesign::Pad", "Pad015")
pad16.Profile = sketch16
pad16.Length = 11.593103
pad16.Reversed = True
body17 = doc.addObject("PartDesign::Body", "Body016")

sketch17 = body17.newObject("Sketcher::SketchObject", "Sketch016")
sketch17.AttachmentSupport = (doc.getObject("XZ_Plane016"), [""])
sketch17.MapMode = "FlatFace"
sketch17.AttachmentOffset = App.Placement(V(0, 0, -128.885373), App.Rotation())
sketch17.addGeometry([
    Part.LineSegment(V(-94, 141, 0), V(-94, -128, 0)),
    Part.LineSegment(V(-94, -128, 0), V(-82, -128, 0)),
    Part.LineSegment(V(-82, -128, 0), V(-82, 141, 0)),
    Part.LineSegment(V(-82, 141, 0), V(-94, 141, 0)),
], False)
sketch17.addConstraint([
    Sketcher.Constraint("Coincident", 0, 2, 1, 1),
    Sketcher.Constraint("Coincident", 1, 2, 2, 1),
    Sketcher.Constraint("Coincident", 2, 2, 3, 1),
    Sketcher.Constraint("Coincident", 3, 2, 0, 1),
    Sketcher.Constraint("Vertical", 0),
    Sketcher.Constraint("Horizontal", 1),
    Sketcher.Constraint("Vertical", 2),
    Sketcher.Constraint("Horizontal", 3),
    Sketcher.Constraint("DistanceX", 1, 1, 1, 2, Q("12.312472 mm")),
    Sketcher.Constraint("DistanceY", 0, 2, 0, 1, Q("268.658191 mm")),
    Sketcher.Constraint("DistanceX", 1, 2, -1, 1, Q("81.809342 mm")),
    Sketcher.Constraint("DistanceY", -1, 1, 2, 2, Q("141.072959 mm")),
])
pad17 = body17.newObject("PartDesign::Pad", "Pad016")
pad17.Profile = sketch17
pad17.Length = 11.593103
pad17.Reversed = True
body18 = doc.addObject("PartDesign::Body", "Body017")

sketch18 = body18.newObject("Sketcher::SketchObject", "Sketch017")
sketch18.AttachmentSupport = (doc.getObject("XZ_Plane017"), [""])
sketch18.MapMode = "FlatFace"
sketch18.AttachmentOffset = App.Placement(V(0, 0, 129.2447), App.Rotation())
sketch18.addGeometry([
    Part.LineSegment(V(-94, 141, 0), V(-94, -128, 0)),
    Part.LineSegment(V(-94, -128, 0), V(-82, -128, 0)),
    Part.LineSegment(V(-82, -128, 0), V(-82, 141, 0)),
    Part.LineSegment(V(-82, 141, 0), V(-94, 141, 0)),
], False)
sketch18.addConstraint([
    Sketcher.Constraint("Coincident", 0, 2, 1, 1),
    Sketcher.Constraint("Coincident", 1, 2, 2, 1),
    Sketcher.Constraint("Coincident", 2, 2, 3, 1),
    Sketcher.Constraint("Coincident", 3, 2, 0, 1),
    Sketcher.Constraint("Vertical", 0),
    Sketcher.Constraint("Horizontal", 1),
    Sketcher.Constraint("Vertical", 2),
    Sketcher.Constraint("Horizontal", 3),
    Sketcher.Constraint("DistanceX", 1, 1, 1, 2, Q("12.312472 mm")),
    Sketcher.Constraint("DistanceY", 0, 2, 0, 1, Q("268.658191 mm")),
    Sketcher.Constraint("DistanceX", 1, 2, -1, 1, Q("81.809342 mm")),
    Sketcher.Constraint("DistanceY", -1, 1, 2, 2, Q("141.072959 mm")),
])
pad18 = body18.newObject("PartDesign::Pad", "Pad017")
pad18.Profile = sketch18
pad18.Length = 12.264073
body19 = doc.addObject("PartDesign::Body", "Body018")

sketch19 = body19.newObject("Sketcher::SketchObject", "Sketch018")
sketch19.AttachmentSupport = (doc.getObject("XZ_Plane018"), [""])
sketch19.MapMode = "FlatFace"
sketch19.AttachmentOffset = App.Placement(V(0, 0, 129.2447), App.Rotation())
sketch19.addGeometry([
    Part.LineSegment(V(82, 141, 0), V(82, -127, 0)),
    Part.LineSegment(V(82, -127, 0), V(94, -127, 0)),
    Part.LineSegment(V(94, -127, 0), V(94, 141, 0)),
    Part.LineSegment(V(94, 141, 0), V(82, 141, 0)),
], False)
sketch19.addConstraint([
    Sketcher.Constraint("Coincident", 0, 2, 1, 1),
    Sketcher.Constraint("Coincident", 1, 2, 2, 1),
    Sketcher.Constraint("Coincident", 2, 2, 3, 1),
    Sketcher.Constraint("Coincident", 3, 2, 0, 1),
    Sketcher.Constraint("Vertical", 0),
    Sketcher.Constraint("Horizontal", 1),
    Sketcher.Constraint("Vertical", 2),
    Sketcher.Constraint("Horizontal", 3),
    Sketcher.Constraint("DistanceY", 0, 2, 0, 1, Q("268.263549 mm")),
    Sketcher.Constraint("DistanceY", 0, 2, -1, 1, Q("127.386302 mm")),
    Sketcher.Constraint("DistanceX", 1, 1, 1, 2, Q("11.917442 mm")),
    Sketcher.Constraint("DistanceX", -1, 1, 0, 2, Q("82.40369 mm")),
])
pad19 = body19.newObject("PartDesign::Pad", "Pad018")
pad19.Profile = sketch19
pad19.Length = 12.264073
body20 = doc.addObject("PartDesign::Body", "Body019")

sketch20 = body20.newObject("Sketcher::SketchObject", "Sketch019")
sketch20.AttachmentSupport = (doc.getObject("XY_Plane019"), [""])
sketch20.MapMode = "FlatFace"
sketch20.AttachmentOffset = App.Placement(V(0, 0, 129.964024), App.Rotation())
sketch20.addGeometry([
    Part.LineSegment(V(-92, 153, 0), V(-92, -154, 0)),
    Part.LineSegment(V(-92, -154, 0), V(-84, -154, 0)),
    Part.LineSegment(V(-84, -154, 0), V(-84, 153, 0)),
    Part.LineSegment(V(-84, 153, 0), V(-92, 153, 0)),
], False)
sketch20.addConstraint([
    Sketcher.Constraint("Coincident", 0, 2, 1, 1),
    Sketcher.Constraint("Coincident", 1, 2, 2, 1),
    Sketcher.Constraint("Coincident", 2, 2, 3, 1),
    Sketcher.Constraint("Coincident", 3, 2, 0, 1),
    Sketcher.Constraint("Vertical", 0),
    Sketcher.Constraint("Horizontal", 1),
    Sketcher.Constraint("Vertical", 2),
    Sketcher.Constraint("Horizontal", 3),
    Sketcher.Constraint("DistanceX", 1, 1, 1, 2, Q("8.402377 mm")),
    Sketcher.Constraint("DistanceY", 0, 2, 0, 1, Q("306.814075 mm")),
    Sketcher.Constraint("DistanceX", 0, 2, -1, 1, Q("91.996521 mm")),
    Sketcher.Constraint("DistanceY", 0, 2, -1, 1, Q("154.304117 mm")),
])
pad20 = body20.newObject("PartDesign::Pad", "Pad019")
pad20.Profile = sketch20
pad20.Length = 11.557743
body21 = doc.addObject("PartDesign::Body", "Body020")

sketch21 = body21.newObject("Sketcher::SketchObject", "Sketch020")
sketch21.AttachmentSupport = (doc.getObject("XY_Plane020"), [""])
sketch21.MapMode = "FlatFace"
sketch21.AttachmentOffset = App.Placement(V(0, 0, 129.964024), App.Rotation())
sketch21.addGeometry([
    Part.LineSegment(V(85, 153, 0), V(85, -155, 0)),
    Part.LineSegment(V(85, -155, 0), V(93, -155, 0)),
    Part.LineSegment(V(93, -155, 0), V(93, 153, 0)),
    Part.LineSegment(V(93, 153, 0), V(85, 153, 0)),
], False)
sketch21.addConstraint([
    Sketcher.Constraint("Coincident", 0, 2, 1, 1),
    Sketcher.Constraint("Coincident", 1, 2, 2, 1),
    Sketcher.Constraint("Coincident", 2, 2, 3, 1),
    Sketcher.Constraint("Coincident", 3, 2, 0, 1),
    Sketcher.Constraint("Vertical", 0),
    Sketcher.Constraint("Horizontal", 1),
    Sketcher.Constraint("Vertical", 2),
    Sketcher.Constraint("Horizontal", 3),
    Sketcher.Constraint("DistanceX", 1, 1, 1, 2, Q("8.402377 mm")),
    Sketcher.Constraint("DistanceY", 0, 2, 0, 1, Q("307.323307 mm")),
    Sketcher.Constraint("DistanceY", 0, 2, -1, 1, Q("154.813349 mm")),
    Sketcher.Constraint("DistanceX", -1, 1, 0, 2, Q("84.708005 mm")),
])
pad21 = body21.newObject("PartDesign::Pad", "Pad020")
pad21.Profile = sketch21
pad21.Length = 11.557743
body22 = doc.addObject("PartDesign::Body", "Body021")

sketch22 = body22.newObject("Sketcher::SketchObject", "Sketch021")
sketch22.AttachmentSupport = (doc.getObject("XY_Plane021"), [""])
sketch22.MapMode = "FlatFace"
sketch22.AttachmentOffset = App.Placement(V(0, 0, -113.154739), App.Rotation())
sketch22.addGeometry([
    Part.LineSegment(V(85, 153, 0), V(85, -155, 0)),
    Part.LineSegment(V(85, -155, 0), V(93, -155, 0)),
    Part.LineSegment(V(93, -155, 0), V(93, 153, 0)),
    Part.LineSegment(V(93, 153, 0), V(85, 153, 0)),
], False)
sketch22.addConstraint([
    Sketcher.Constraint("Coincident", 0, 2, 1, 1),
    Sketcher.Constraint("Coincident", 1, 2, 2, 1),
    Sketcher.Constraint("Coincident", 2, 2, 3, 1),
    Sketcher.Constraint("Coincident", 3, 2, 0, 1),
    Sketcher.Constraint("Vertical", 0),
    Sketcher.Constraint("Horizontal", 1),
    Sketcher.Constraint("Vertical", 2),
    Sketcher.Constraint("Horizontal", 3),
    Sketcher.Constraint("DistanceX", 1, 1, 1, 2, Q("8.402377 mm")),
    Sketcher.Constraint("DistanceY", 0, 2, 0, 1, Q("307.323307 mm")),
    Sketcher.Constraint("DistanceY", 0, 2, -1, 1, Q("154.813349 mm")),
    Sketcher.Constraint("DistanceX", -1, 1, 0, 2, Q("84.708005 mm")),
])
pad22 = body22.newObject("PartDesign::Pad", "Pad021")
pad22.Profile = sketch22
pad22.Length = 14.77918
pad22.Reversed = True
body23 = doc.addObject("PartDesign::Body", "Body022")

sketch23 = body23.newObject("Sketcher::SketchObject", "Sketch022")
sketch23.AttachmentSupport = (doc.getObject("XY_Plane022"), [""])
sketch23.MapMode = "FlatFace"
sketch23.AttachmentOffset = App.Placement(V(0, 0, -113.154739), App.Rotation())
sketch23.addGeometry([
    Part.LineSegment(V(-92, 153, 0), V(-92, -154, 0)),
    Part.LineSegment(V(-92, -154, 0), V(-84, -154, 0)),
    Part.LineSegment(V(-84, -154, 0), V(-84, 153, 0)),
    Part.LineSegment(V(-84, 153, 0), V(-92, 153, 0)),
], False)
sketch23.addConstraint([
    Sketcher.Constraint("Coincident", 0, 2, 1, 1),
    Sketcher.Constraint("Coincident", 1, 2, 2, 1),
    Sketcher.Constraint("Coincident", 2, 2, 3, 1),
    Sketcher.Constraint("Coincident", 3, 2, 0, 1),
    Sketcher.Constraint("Vertical", 0),
    Sketcher.Constraint("Horizontal", 1),
    Sketcher.Constraint("Vertical", 2),
    Sketcher.Constraint("Horizontal", 3),
    Sketcher.Constraint("DistanceX", 1, 1, 1, 2, Q("8.402377 mm")),
    Sketcher.Constraint("DistanceY", 0, 2, 0, 1, Q("306.814075 mm")),
    Sketcher.Constraint("DistanceX", 0, 2, -1, 1, Q("91.996521 mm")),
    Sketcher.Constraint("DistanceY", 0, 2, -1, 1, Q("154.304117 mm")),
])
pad23 = body23.newObject("PartDesign::Pad", "Pad022")
pad23.Profile = sketch23
pad23.Length = 14.77918
pad23.Reversed = True
body24 = doc.addObject("PartDesign::Body", "Body023")

sketch24 = body24.newObject("Sketcher::SketchObject", "Sketch023")
sketch24.AttachmentSupport = (doc.getObject("XY_Plane023"), [""])
sketch24.MapMode = "FlatFace"
sketch24.AttachmentOffset = App.Placement(V(0, 0, -97.536519), App.Rotation())
sketch24.addGeometry([
    Part.LineSegment(V(-123, 117, 0), V(-123, 109, 0)),
    Part.LineSegment(V(-123, 109, 0), V(126, 109, 0)),
    Part.LineSegment(V(126, 109, 0), V(126, 117, 0)),
    Part.LineSegment(V(126, 117, 0), V(-123, 117, 0)),
], False)
sketch24.addConstraint([
    Sketcher.Constraint("Coincident", 0, 2, 1, 1),
    Sketcher.Constraint("Coincident", 1, 2, 2, 1),
    Sketcher.Constraint("Coincident", 2, 2, 3, 1),
    Sketcher.Constraint("Coincident", 3, 2, 0, 1),
    Sketcher.Constraint("Vertical", 0),
    Sketcher.Constraint("Horizontal", 1),
    Sketcher.Constraint("Vertical", 2),
    Sketcher.Constraint("Horizontal", 3),
    Sketcher.Constraint("DistanceY", 0, 2, 0, 1, Q("7.68061 mm")),
    Sketcher.Constraint("DistanceX", 1, 1, 1, 2, Q("249.180675 mm")),
    Sketcher.Constraint("DistanceX", 0, 2, -1, 1, Q("123.378158 mm")),
    Sketcher.Constraint("DistanceY", -1, 1, 0, 2, Q("109.184653 mm")),
])
pad24 = body24.newObject("PartDesign::Pad", "Pad023")
pad24.Profile = sketch24
pad24.Length = 15.426189
pad24.Reversed = True
body25 = doc.addObject("PartDesign::Body", "Body024")

sketch25 = body25.newObject("Sketcher::SketchObject", "Sketch024")
sketch25.AttachmentSupport = (doc.getObject("XY_Plane024"), [""])
sketch25.MapMode = "FlatFace"
sketch25.AttachmentOffset = App.Placement(V(0, 0, -97.536519), App.Rotation())
sketch25.addGeometry([
    Part.LineSegment(V(-123, -112, 0), V(-123, -118, 0)),
    Part.LineSegment(V(-123, -118, 0), V(126, -118, 0)),
    Part.LineSegment(V(126, -118, 0), V(126, -112, 0)),
    Part.LineSegment(V(126, -112, 0), V(-123, -112, 0)),
], False)
sketch25.addConstraint([
    Sketcher.Constraint("Coincident", 0, 2, 1, 1),
    Sketcher.Constraint("Coincident", 1, 2, 2, 1),
    Sketcher.Constraint("Coincident", 2, 2, 3, 1),
    Sketcher.Constraint("Coincident", 3, 2, 0, 1),
    Sketcher.Constraint("Vertical", 0),
    Sketcher.Constraint("Horizontal", 1),
    Sketcher.Constraint("Vertical", 2),
    Sketcher.Constraint("Horizontal", 3),
    Sketcher.Constraint("DistanceY", 0, 2, 0, 1, Q("6.697312 mm")),
    Sketcher.Constraint("DistanceX", 1, 1, 1, 2, Q("249.180675 mm")),
    Sketcher.Constraint("DistanceY", 0, 2, -1, 1, Q("118.282631 mm")),
    Sketcher.Constraint("DistanceX", 0, 2, -1, 1, Q("123.378158 mm")),
])
pad25 = body25.newObject("PartDesign::Pad", "Pad024")
pad25.Profile = sketch25
pad25.Length = 15.426189
pad25.Reversed = True
body26 = doc.addObject("PartDesign::Body", "Body025")

sketch26 = body26.newObject("Sketcher::SketchObject", "Sketch025")
sketch26.AttachmentSupport = (doc.getObject("XY_Plane025"), [""])
sketch26.MapMode = "FlatFace"
sketch26.AttachmentOffset = App.Placement(V(0, 0, 117.391318), App.Rotation())
sketch26.addGeometry([
    Part.LineSegment(V(-123, 117, 0), V(-123, 109, 0)),
    Part.LineSegment(V(-123, 109, 0), V(126, 109, 0)),
    Part.LineSegment(V(126, 109, 0), V(126, 117, 0)),
    Part.LineSegment(V(126, 117, 0), V(-123, 117, 0)),
], False)
sketch26.addConstraint([
    Sketcher.Constraint("Coincident", 0, 2, 1, 1),
    Sketcher.Constraint("Coincident", 1, 2, 2, 1),
    Sketcher.Constraint("Coincident", 2, 2, 3, 1),
    Sketcher.Constraint("Coincident", 3, 2, 0, 1),
    Sketcher.Constraint("Vertical", 0),
    Sketcher.Constraint("Horizontal", 1),
    Sketcher.Constraint("Vertical", 2),
    Sketcher.Constraint("Horizontal", 3),
    Sketcher.Constraint("DistanceY", 0, 2, 0, 1, Q("7.68061 mm")),
    Sketcher.Constraint("DistanceX", 1, 1, 1, 2, Q("249.180675 mm")),
    Sketcher.Constraint("DistanceX", 0, 2, -1, 1, Q("123.378158 mm")),
    Sketcher.Constraint("DistanceY", -1, 1, 0, 2, Q("109.184653 mm")),
])
pad26 = body26.newObject("PartDesign::Pad", "Pad025")
pad26.Profile = sketch26
pad26.Length = 12.206152
body27 = doc.addObject("PartDesign::Body", "Body026")

sketch27 = body27.newObject("Sketcher::SketchObject", "Sketch026")
sketch27.AttachmentSupport = (doc.getObject("XY_Plane026"), [""])
sketch27.MapMode = "FlatFace"
sketch27.AttachmentOffset = App.Placement(V(0, 0, 117.391318), App.Rotation())
sketch27.addGeometry([
    Part.LineSegment(V(-123, -112, 0), V(-123, -118, 0)),
    Part.LineSegment(V(-123, -118, 0), V(126, -118, 0)),
    Part.LineSegment(V(126, -118, 0), V(126, -112, 0)),
    Part.LineSegment(V(126, -112, 0), V(-123, -112, 0)),
], False)
sketch27.addConstraint([
    Sketcher.Constraint("Coincident", 0, 2, 1, 1),
    Sketcher.Constraint("Coincident", 1, 2, 2, 1),
    Sketcher.Constraint("Coincident", 2, 2, 3, 1),
    Sketcher.Constraint("Coincident", 3, 2, 0, 1),
    Sketcher.Constraint("Vertical", 0),
    Sketcher.Constraint("Horizontal", 1),
    Sketcher.Constraint("Vertical", 2),
    Sketcher.Constraint("Horizontal", 3),
    Sketcher.Constraint("DistanceY", 0, 2, 0, 1, Q("6.697312 mm")),
    Sketcher.Constraint("DistanceX", 1, 1, 1, 2, Q("249.180675 mm")),
    Sketcher.Constraint("DistanceY", 0, 2, -1, 1, Q("118.282631 mm")),
    Sketcher.Constraint("DistanceX", 0, 2, -1, 1, Q("123.378158 mm")),
])
pad27 = body27.newObject("PartDesign::Pad", "Pad026")
pad27.Profile = sketch27
pad27.Length = 12.206152

doc.recompute()
